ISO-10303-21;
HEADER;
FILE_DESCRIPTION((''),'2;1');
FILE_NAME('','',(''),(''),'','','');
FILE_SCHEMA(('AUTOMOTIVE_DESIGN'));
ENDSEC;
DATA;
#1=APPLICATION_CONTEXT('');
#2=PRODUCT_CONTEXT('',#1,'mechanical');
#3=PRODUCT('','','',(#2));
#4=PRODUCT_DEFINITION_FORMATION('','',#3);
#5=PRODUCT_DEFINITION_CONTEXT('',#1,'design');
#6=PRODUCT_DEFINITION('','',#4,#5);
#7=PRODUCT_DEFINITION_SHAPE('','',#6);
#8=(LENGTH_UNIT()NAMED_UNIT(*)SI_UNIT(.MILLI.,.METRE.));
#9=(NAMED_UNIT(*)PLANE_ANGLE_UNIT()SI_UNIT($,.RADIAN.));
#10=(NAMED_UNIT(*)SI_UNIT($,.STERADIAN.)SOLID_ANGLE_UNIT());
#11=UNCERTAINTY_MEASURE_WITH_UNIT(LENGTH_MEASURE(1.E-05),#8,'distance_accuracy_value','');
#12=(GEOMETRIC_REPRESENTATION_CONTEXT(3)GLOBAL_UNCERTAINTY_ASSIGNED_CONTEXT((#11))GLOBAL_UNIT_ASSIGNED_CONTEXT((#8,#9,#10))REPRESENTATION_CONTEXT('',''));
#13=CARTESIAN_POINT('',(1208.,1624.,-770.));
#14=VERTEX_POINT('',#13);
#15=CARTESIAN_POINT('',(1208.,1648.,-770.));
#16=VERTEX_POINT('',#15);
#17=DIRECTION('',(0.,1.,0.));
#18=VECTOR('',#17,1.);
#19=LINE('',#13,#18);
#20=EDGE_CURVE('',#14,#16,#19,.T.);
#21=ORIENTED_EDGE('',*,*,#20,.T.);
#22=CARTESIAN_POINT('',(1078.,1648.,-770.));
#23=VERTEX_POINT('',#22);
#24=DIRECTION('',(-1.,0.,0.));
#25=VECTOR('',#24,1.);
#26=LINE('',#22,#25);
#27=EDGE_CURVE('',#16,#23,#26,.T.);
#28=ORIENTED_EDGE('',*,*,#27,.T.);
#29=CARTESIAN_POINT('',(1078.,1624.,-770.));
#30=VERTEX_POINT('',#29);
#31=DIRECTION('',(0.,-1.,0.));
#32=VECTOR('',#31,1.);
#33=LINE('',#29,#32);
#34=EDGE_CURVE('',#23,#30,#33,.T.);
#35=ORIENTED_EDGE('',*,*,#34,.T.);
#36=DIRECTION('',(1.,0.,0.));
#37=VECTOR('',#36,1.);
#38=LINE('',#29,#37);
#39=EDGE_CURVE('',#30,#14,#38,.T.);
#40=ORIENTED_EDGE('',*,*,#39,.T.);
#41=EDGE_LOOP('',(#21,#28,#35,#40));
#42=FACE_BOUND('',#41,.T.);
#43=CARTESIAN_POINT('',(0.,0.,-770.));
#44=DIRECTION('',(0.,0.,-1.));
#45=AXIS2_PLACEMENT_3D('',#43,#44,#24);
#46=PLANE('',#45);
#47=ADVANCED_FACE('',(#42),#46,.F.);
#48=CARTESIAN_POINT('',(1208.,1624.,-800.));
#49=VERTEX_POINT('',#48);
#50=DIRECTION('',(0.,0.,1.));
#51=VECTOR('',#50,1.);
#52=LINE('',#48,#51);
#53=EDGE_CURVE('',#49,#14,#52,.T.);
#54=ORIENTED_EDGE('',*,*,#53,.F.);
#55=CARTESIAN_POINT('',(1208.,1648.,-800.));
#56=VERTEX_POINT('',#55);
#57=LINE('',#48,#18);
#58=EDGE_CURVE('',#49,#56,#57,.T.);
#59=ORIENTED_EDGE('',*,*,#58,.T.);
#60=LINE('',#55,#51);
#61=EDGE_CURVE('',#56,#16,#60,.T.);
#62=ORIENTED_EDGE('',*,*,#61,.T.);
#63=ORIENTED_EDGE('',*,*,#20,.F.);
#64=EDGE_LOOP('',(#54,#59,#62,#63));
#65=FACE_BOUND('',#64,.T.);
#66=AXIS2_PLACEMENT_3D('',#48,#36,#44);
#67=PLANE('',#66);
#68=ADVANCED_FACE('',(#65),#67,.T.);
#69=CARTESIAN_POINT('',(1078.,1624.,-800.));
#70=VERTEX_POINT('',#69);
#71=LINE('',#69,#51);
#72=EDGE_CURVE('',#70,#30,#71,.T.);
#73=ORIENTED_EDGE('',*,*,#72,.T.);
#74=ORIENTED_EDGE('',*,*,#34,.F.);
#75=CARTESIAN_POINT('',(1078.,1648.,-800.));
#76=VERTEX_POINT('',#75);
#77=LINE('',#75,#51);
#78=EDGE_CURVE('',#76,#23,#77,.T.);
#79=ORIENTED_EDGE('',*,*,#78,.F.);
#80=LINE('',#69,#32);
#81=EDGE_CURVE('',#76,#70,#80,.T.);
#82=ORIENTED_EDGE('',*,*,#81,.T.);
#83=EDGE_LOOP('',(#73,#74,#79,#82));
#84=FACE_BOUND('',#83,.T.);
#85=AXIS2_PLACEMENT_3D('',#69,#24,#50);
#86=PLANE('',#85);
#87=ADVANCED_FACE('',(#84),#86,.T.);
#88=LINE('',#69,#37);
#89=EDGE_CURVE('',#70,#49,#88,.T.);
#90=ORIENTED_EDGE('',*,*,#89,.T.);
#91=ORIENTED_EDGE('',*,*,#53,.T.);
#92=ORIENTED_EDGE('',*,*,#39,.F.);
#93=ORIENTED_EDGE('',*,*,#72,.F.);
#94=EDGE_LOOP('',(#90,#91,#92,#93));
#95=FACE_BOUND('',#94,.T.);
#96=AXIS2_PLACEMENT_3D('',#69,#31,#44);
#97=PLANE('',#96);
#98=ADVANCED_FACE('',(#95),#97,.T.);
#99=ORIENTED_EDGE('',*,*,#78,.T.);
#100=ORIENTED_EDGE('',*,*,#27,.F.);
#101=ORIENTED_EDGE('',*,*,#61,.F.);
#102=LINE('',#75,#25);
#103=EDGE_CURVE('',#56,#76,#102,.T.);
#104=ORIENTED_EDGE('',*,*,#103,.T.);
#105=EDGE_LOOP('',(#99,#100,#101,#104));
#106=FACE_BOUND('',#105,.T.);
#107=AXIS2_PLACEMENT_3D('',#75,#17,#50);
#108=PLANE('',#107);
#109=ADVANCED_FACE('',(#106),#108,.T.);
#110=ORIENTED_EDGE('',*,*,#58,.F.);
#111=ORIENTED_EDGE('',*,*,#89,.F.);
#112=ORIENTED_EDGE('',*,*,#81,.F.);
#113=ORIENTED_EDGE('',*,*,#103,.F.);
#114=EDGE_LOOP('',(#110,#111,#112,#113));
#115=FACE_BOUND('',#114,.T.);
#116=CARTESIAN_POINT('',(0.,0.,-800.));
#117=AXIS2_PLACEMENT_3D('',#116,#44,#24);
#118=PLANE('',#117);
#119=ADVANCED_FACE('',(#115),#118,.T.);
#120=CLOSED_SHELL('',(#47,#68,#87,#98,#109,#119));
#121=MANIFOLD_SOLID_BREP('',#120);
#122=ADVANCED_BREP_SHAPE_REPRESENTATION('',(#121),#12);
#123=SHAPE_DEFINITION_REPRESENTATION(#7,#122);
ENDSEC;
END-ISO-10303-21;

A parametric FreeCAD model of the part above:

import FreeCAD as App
import Part
import Sketcher
from FreeCAD import Vector
Q = App.Units.Quantity


def add_polygon(sketch, points):
    """Adds a closed chain of lines whose ends are joined by coincident constraints."""
    first, n = sketch.GeometryCount, len(points)
    for a, b in zip(points, points[1:] + points[:1]):
        sketch.addGeometry(Part.LineSegment(App.Vector(*a, 0), App.Vector(*b, 0)), False)
    for i in range(n):
        sketch.addConstraint(Sketcher.Constraint("Coincident", first + i, 2, first + (i + 1) % n, 1))

doc = App.newDocument("Part")
body = doc.addObject("PartDesign::Body", "Body")

# Sketch on XY plane
sketch1 = body.newObject("Sketcher::SketchObject", "Sketch")
sketch1.AttachmentSupport = (doc.getObject("XY_Plane"), [""])
sketch1.MapMode = "FlatFace"
sketch1.AttachmentOffset = App.Placement(Vector(0, 0, -770), App.Rotation())
add_polygon(sketch1, [(1078, 1648), (1078, 1624), (1208, 1624), (1208, 1648)])  # lines 0-3
sketch1.addConstraint([
    Sketcher.Constraint("Vertical", 0),
    Sketcher.Constraint("Horizontal", 1),
    Sketcher.Constraint("Vertical", 2),
    Sketcher.Constraint("Horizontal", 3),
    Sketcher.Constraint("DistanceX", 1, 1, 1, 2, Q("130 mm")),
    Sketcher.Constraint("DistanceY", 0, 2, 0, 1, Q("24 mm")),
    Sketcher.Constraint("DistanceX", -1, 1, 0, 2, Q("1078 mm")),
    Sketcher.Constraint("DistanceY", -1, 1, 0, 2, Q("1624 mm")),
])
pad1 = body.newObject("PartDesign::Pad", "Pad")
pad1.Profile = sketch1
pad1.Length = 30
pad1.Reversed = True

doc.recompute()
